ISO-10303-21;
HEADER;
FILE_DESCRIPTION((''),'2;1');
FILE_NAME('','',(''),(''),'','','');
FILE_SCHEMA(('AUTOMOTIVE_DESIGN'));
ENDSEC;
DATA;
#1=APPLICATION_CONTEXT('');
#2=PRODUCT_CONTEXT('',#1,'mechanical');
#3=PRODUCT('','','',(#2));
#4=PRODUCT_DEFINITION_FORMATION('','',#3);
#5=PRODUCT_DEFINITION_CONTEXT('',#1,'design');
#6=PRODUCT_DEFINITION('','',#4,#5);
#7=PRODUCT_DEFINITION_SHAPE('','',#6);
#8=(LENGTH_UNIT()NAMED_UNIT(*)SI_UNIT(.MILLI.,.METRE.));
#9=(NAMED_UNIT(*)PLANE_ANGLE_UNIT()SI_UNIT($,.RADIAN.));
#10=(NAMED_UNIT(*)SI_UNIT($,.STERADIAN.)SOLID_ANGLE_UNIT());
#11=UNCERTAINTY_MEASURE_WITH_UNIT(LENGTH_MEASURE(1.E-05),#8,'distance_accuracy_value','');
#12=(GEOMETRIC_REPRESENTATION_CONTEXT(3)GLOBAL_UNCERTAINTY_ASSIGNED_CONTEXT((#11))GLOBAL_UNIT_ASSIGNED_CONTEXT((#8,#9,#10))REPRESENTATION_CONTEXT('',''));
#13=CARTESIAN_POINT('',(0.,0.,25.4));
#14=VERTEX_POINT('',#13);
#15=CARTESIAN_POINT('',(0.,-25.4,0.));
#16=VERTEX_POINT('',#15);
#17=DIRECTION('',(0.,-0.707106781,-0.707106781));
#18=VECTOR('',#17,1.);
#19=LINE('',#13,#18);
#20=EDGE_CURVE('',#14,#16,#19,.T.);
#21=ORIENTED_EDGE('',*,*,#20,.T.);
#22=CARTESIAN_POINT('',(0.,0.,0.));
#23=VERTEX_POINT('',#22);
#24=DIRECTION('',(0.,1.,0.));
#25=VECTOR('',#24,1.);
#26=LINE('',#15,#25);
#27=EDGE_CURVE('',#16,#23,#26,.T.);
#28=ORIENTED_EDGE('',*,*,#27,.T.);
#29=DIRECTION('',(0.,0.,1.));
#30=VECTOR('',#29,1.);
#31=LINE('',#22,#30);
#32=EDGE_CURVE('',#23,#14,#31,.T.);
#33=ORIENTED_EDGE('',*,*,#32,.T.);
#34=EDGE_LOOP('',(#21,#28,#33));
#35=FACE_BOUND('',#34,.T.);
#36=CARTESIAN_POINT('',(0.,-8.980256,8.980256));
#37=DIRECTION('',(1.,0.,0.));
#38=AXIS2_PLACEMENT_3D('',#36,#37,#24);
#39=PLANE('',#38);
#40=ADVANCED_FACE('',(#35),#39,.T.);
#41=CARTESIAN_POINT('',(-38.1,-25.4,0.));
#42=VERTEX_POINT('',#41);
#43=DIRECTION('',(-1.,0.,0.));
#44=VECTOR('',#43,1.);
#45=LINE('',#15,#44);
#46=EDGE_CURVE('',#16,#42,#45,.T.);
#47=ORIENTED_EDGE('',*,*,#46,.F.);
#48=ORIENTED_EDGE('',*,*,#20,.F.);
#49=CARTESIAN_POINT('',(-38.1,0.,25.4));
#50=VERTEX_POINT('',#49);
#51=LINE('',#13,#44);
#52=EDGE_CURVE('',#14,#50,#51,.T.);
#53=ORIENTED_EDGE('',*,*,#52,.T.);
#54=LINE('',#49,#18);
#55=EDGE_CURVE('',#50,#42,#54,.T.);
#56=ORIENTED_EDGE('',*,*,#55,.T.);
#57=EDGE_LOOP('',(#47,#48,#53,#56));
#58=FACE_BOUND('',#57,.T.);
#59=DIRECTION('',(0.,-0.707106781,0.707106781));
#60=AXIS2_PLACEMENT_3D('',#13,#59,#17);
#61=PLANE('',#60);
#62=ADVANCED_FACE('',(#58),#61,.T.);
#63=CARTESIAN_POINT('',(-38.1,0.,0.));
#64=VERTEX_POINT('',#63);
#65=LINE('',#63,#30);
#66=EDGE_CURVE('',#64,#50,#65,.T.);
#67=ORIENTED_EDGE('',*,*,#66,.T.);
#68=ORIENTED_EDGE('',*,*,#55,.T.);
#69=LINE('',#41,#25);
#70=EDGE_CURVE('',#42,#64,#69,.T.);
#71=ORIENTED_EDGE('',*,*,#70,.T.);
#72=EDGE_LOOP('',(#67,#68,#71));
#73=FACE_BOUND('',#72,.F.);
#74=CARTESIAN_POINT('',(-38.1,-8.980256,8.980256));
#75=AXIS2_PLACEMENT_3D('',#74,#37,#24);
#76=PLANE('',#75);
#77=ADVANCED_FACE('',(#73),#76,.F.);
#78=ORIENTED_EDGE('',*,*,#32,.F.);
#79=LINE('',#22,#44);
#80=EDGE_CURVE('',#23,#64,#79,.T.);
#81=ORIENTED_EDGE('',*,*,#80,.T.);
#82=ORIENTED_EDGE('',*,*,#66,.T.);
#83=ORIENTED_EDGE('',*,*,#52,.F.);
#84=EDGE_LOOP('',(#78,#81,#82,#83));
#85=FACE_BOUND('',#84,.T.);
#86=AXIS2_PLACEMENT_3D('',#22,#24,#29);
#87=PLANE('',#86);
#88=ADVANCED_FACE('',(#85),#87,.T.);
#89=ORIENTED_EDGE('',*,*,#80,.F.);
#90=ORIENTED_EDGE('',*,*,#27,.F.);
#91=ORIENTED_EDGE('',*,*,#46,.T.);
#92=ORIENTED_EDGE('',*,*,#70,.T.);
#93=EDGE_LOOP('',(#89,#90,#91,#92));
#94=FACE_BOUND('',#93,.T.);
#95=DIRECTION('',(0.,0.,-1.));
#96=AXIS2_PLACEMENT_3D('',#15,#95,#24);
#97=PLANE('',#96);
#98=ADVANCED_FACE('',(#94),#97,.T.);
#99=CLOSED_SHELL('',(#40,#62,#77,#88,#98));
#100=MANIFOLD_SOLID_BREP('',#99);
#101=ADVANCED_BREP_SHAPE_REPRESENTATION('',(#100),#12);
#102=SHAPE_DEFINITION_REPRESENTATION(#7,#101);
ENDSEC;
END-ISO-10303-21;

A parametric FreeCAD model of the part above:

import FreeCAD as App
import Part
import Sketcher
from FreeCAD import Vector
Q = App.Units.Quantity


def add_polygon(sketch, points):
    """Adds a closed chain of lines whose ends are joined by coincident constraints."""
    first, n = sketch.GeometryCount, len(points)
    for a, b in zip(points, points[1:] + points[:1]):
        sketch.addGeometry(Part.LineSegment(App.Vector(*a, 0), App.Vector(*b, 0)), False)
    for i in range(n):
        sketch.addConstraint(Sketcher.Constraint("Coincident", first + i, 2, first + (i + 1) % n, 1))

doc = App.newDocument("Part")
body = doc.addObject("PartDesign::Body", "Body")

sketch1 = body.newObject("Sketcher::SketchObject", "Sketch")
sketch1.AttachmentSupport = (doc.getObject("YZ_Plane"), [""])
sketch1.MapMode = "FlatFace"
add_polygon(sketch1, [(-25, 0), (0, 0), (0, 25)])
sketch1.addConstraint(Sketcher.Constraint("Horizontal", 0))
sketch1.addConstraint(Sketcher.Constraint("Vertical", 1))
sketch1.addConstraint(Sketcher.Constraint("Coincident", 0, 2, -1, 1))
sketch1.addConstraint(Sketcher.Constraint("Equal", 0, 1))
sketch1.addConstraint(Sketcher.Constraint("DistanceX", 0, 1, 0, 2, Q("1 in")))
pad1 = body.newObject("PartDesign::Pad", "Pad")
pad1.Profile = sketch1
pad1.Length = Q("1.5 in")
pad1.Reversed = True

doc.recompute()
